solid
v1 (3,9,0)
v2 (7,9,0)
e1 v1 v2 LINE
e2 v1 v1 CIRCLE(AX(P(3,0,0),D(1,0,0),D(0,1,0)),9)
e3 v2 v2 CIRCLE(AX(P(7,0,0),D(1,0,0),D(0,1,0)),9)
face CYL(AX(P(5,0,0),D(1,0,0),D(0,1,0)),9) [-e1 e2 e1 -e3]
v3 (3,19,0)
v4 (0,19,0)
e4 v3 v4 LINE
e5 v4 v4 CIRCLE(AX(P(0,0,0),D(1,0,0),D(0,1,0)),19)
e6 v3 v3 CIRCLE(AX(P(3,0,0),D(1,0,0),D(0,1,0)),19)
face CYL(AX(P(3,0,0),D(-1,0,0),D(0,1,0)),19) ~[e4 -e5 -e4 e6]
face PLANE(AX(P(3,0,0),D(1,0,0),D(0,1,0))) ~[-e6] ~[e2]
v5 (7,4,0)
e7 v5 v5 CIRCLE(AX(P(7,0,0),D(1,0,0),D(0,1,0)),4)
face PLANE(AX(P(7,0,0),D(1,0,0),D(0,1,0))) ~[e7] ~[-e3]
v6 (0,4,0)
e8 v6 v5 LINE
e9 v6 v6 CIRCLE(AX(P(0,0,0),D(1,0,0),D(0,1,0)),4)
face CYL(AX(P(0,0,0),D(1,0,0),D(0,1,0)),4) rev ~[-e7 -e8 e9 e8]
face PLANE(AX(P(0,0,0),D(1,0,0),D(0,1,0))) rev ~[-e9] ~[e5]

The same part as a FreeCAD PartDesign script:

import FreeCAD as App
import Part
import Sketcher

V = App.Vector
Q = App.Units.Quantity


def add_polygon(sketch, points):
    """Adds a closed chain of lines whose ends are joined by coincident constraints."""
    first, n = sketch.GeometryCount, len(points)
    for a, b in zip(points, points[1:] + points[:1]):
        sketch.addGeometry(Part.LineSegment(App.Vector(*a, 0), App.Vector(*b, 0)), False)
    for i in range(n):
        sketch.addConstraint(Sketcher.Constraint("Coincident", first + i, 2, first + (i + 1) % n, 1))

doc = App.newDocument("Part")
body = doc.addObject("PartDesign::Body", "Body")

# Sketch on XY plane
sketch1 = body.newObject("Sketcher::SketchObject", "Sketch")
sketch1.AttachmentSupport = (doc.getObject("XY_Plane"), [""])
sketch1.MapMode = "FlatFace"
add_polygon(sketch1, [(3, 19), (0, 19), (0, 4), (7, 4), (7, 9), (3, 9)])  # lines 0-5
sketch1.addConstraint([
    Sketcher.Constraint("Horizontal", 0),
    Sketcher.Constraint("Vertical", 1),
    Sketcher.Constraint("Horizontal", 2),
    Sketcher.Constraint("Vertical", 3),
    Sketcher.Constraint("Horizontal", 4),
    Sketcher.Constraint("Vertical", 5),
    Sketcher.Constraint("PointOnObject", 0, 2, -2),
    Sketcher.Constraint("DistanceX", 0, 2, 0, 1, Q("3 mm")),
    Sketcher.Constraint("DistanceX", 2, 1, 2, 2, Q("7 mm")),
    Sketcher.Constraint("DistanceY", 1, 2, 1, 1, Q("15 mm")),
    Sketcher.Constraint("DistanceY", 3, 1, 3, 2, Q("5 mm")),
    Sketcher.Constraint("DistanceY", -1, 1, 0, 2, Q("19 mm")),
])
revolution = body.newObject("PartDesign::Revolution", "Revolution")
revolution.Profile = sketch1
revolution.ReferenceAxis = (sketch1, ["H_Axis"])
revolution.Angle = 360

doc.recompute()
